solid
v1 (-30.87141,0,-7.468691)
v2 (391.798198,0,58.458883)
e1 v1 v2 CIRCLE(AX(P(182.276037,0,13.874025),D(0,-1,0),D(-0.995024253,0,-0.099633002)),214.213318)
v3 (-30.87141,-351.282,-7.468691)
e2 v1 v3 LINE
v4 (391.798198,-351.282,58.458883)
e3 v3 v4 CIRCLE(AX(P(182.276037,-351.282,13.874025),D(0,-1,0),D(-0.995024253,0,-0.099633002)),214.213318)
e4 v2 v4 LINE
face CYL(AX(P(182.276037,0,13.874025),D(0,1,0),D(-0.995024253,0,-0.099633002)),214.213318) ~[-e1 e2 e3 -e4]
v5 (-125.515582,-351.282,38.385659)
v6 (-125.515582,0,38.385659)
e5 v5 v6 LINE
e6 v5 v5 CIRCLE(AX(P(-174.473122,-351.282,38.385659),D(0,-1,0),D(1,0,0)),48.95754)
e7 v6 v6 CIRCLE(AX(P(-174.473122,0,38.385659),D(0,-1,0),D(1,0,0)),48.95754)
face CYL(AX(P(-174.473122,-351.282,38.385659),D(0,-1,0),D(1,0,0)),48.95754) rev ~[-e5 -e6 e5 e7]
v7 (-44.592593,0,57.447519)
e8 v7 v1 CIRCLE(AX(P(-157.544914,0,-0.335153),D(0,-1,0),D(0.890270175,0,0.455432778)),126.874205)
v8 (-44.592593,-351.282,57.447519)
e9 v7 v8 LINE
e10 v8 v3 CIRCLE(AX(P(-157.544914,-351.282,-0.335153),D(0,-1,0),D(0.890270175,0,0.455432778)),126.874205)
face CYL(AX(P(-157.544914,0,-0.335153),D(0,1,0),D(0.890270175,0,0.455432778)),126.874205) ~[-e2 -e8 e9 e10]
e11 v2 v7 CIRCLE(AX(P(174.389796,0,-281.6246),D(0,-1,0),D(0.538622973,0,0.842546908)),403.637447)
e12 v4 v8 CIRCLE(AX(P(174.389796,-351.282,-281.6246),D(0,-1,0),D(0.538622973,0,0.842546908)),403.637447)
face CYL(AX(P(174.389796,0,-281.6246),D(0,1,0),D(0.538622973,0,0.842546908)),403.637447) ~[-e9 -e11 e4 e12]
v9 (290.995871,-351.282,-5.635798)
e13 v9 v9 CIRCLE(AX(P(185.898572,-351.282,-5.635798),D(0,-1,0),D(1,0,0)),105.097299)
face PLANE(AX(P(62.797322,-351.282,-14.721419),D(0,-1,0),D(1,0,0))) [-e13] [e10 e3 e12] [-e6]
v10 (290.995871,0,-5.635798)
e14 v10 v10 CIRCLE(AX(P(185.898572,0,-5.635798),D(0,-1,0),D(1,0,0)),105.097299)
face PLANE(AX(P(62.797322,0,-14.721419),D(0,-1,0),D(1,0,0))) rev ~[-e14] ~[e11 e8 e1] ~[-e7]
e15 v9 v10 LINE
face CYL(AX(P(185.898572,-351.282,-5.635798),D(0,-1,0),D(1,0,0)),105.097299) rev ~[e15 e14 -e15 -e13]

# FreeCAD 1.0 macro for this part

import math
import FreeCAD as App
import Part
import Sketcher
Q = App.Units.Quantity

doc = App.newDocument("Part")
body = doc.addObject("PartDesign::Body", "Body")

# Sketch on XZ plane
sketch1 = doc.addObject("Sketcher::SketchObject", "Sketch")
body.addObject(sketch1)
sketch1.AttachmentSupport = (doc.XZ_Plane, [""])
sketch1.MapMode = "FlatFace"
sketch1.addGeometry([
    Part.ArcOfCircle(Part.Circle(App.Vector(174, -282, 0), App.Vector(0, 0, 1), 404), math.radians(57), math.radians(123)),
    Part.ArcOfCircle(Part.Circle(App.Vector(-158, 0, 0), App.Vector(0, 0, 1), 127), math.radians(27), math.radians(357)),
    Part.ArcOfCircle(Part.Circle(App.Vector(182, 14, 0), App.Vector(0, 0, 1), 214), math.radians(-174), math.radians(12)),
], False)
sketch1.addConstraint([
    Sketcher.Constraint("Coincident", 0, 2, 1, 1),
    Sketcher.Constraint("Coincident", 1, 2, 2, 1),
    Sketcher.Constraint("Coincident", 2, 2, 0, 1),
    Sketcher.Constraint("Radius", 0, 403.637447),
    Sketcher.Constraint("Radius", 1, 126.874205),
    Sketcher.Constraint("Radius", 2, 214.213318),
    Sketcher.Constraint("DistanceY", 0, 3, -1, 1, 281.6246),
    Sketcher.Constraint("DistanceX", 0, 3, 2, 2, 217.408402),
    Sketcher.Constraint("DistanceY", -1, 1, 0, 2, 57.447519),
    Sketcher.Constraint("DistanceX", 1, 2, -1, 1, 30.87141),
    Sketcher.Constraint("DistanceY", 1, 2, -1, 1, 7.468691),
    Sketcher.Constraint("DistanceX", 1, 3, 0, 3, 331.93471),
])
pad1 = doc.addObject("PartDesign::Pad", "Pad")
body.addObject(pad1)
pad1.Profile = sketch1
pad1.Length = Q("13.83 in")

# Sketch on XZ plane
sketch2 = doc.addObject("Sketcher::SketchObject", "Sketch001")
body.addObject(sketch2)
sketch2.AttachmentSupport = (doc.XZ_Plane, [""])
sketch2.MapMode = "FlatFace"
sketch2.AttachmentOffset = App.Placement(App.Vector(0, 0, 13.83 * 25.4), App.Rotation())
sketch2.addGeometry([
    Part.Circle(App.Vector(-174, 38, 0), App.Vector(0, 0, 1), 49),
    Part.Circle(App.Vector(186, -6, 0), App.Vector(0, 0, 1), 105),
], False)
sketch2.addConstraint([
    Sketcher.Constraint("Diameter", 1, 210.194598),
    Sketcher.Constraint("Diameter", 0, 97.91508),
    Sketcher.Constraint("DistanceY", 1, 3, -1, 1, 5.635798),
    Sketcher.Constraint("DistanceX", 0, 3, -1, 1, 174.473122),
    Sketcher.Constraint("DistanceY", -1, 1, 0, 3, 38.385659),
    Sketcher.Constraint("DistanceX", -1, 1, 1, 3, 185.898572),
])
pocket1 = doc.addObject("PartDesign::Pocket", "Pocket")
body.addObject(pocket1)
pocket1.Profile = sketch2
pocket1.Length = Q("54.1 in")

doc.recompute()
